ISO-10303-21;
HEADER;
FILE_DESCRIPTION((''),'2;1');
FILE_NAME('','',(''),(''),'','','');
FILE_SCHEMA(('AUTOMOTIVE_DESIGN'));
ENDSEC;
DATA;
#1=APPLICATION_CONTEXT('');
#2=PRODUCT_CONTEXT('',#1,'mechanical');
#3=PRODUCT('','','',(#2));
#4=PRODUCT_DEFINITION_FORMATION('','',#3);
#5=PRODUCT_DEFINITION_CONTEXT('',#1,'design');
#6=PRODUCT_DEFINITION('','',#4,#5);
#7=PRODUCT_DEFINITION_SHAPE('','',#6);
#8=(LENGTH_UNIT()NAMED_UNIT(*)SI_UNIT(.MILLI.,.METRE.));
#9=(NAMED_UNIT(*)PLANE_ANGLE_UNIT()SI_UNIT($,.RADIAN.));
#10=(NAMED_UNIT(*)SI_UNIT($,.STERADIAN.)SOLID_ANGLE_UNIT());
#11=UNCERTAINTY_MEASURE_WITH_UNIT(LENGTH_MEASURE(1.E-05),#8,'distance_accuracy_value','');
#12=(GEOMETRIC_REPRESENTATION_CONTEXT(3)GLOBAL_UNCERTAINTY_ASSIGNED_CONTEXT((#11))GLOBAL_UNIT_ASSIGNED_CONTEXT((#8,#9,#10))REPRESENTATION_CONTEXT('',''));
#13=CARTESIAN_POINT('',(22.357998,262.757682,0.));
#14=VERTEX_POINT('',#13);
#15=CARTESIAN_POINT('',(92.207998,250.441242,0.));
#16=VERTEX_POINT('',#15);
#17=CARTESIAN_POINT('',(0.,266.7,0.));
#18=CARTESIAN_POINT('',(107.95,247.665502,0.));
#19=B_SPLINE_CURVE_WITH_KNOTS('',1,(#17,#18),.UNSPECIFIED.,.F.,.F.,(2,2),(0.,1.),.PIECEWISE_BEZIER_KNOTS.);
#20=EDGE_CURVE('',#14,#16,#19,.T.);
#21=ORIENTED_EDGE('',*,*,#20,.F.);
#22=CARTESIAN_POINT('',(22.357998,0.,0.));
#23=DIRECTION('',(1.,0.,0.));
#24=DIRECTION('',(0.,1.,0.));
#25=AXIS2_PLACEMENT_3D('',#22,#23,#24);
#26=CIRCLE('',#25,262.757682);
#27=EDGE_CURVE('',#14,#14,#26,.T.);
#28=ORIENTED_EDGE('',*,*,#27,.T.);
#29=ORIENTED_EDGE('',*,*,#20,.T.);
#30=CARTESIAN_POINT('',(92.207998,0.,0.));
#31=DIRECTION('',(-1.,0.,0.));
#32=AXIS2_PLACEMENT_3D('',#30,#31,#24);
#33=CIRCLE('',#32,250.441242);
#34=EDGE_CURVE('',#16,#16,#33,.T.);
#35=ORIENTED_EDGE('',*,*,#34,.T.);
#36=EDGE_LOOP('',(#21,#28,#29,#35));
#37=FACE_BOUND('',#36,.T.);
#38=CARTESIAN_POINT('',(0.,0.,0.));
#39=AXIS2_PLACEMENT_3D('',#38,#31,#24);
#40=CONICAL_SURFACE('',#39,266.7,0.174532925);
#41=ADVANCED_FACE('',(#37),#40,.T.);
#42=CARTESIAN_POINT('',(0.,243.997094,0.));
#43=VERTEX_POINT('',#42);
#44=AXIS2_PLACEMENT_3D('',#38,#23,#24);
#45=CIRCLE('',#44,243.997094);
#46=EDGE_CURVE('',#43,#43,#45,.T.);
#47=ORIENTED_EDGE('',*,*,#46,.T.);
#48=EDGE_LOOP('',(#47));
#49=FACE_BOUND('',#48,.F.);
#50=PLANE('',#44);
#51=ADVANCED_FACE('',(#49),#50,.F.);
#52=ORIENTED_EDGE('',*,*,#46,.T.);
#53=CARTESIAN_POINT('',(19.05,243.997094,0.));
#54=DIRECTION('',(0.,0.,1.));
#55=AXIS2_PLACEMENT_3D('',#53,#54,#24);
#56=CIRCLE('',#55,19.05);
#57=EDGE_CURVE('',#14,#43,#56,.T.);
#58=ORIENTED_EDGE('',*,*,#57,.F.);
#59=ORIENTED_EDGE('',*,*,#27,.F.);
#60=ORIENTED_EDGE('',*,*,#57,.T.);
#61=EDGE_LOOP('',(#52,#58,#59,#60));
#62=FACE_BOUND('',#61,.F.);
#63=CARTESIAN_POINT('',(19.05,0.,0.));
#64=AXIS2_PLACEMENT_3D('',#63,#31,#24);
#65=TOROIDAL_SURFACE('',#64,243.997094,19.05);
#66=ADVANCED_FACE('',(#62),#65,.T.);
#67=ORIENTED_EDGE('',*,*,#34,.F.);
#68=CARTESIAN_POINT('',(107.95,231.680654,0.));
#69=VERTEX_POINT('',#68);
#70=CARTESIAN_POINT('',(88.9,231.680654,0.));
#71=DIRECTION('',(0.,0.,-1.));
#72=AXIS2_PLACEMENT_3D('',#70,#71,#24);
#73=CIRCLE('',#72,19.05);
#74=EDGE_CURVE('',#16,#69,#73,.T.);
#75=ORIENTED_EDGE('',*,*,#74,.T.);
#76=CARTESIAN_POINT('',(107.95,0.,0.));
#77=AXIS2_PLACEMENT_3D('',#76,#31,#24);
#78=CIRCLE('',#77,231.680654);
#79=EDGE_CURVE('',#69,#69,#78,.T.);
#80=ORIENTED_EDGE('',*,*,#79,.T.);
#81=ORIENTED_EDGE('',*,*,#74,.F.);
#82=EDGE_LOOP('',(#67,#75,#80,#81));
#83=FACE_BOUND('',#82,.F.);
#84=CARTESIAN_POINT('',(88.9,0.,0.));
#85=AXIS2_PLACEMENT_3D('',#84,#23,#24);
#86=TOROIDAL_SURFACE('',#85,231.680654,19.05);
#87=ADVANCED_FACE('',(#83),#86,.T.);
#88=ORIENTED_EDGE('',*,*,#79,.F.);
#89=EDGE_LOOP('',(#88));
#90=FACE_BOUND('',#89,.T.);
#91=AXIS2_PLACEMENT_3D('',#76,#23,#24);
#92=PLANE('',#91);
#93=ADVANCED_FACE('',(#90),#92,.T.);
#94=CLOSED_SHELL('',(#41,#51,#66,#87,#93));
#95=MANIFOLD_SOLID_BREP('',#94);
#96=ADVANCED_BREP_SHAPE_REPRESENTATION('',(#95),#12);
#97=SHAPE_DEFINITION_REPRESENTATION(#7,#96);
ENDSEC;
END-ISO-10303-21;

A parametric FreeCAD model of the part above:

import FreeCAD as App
import Part
import Sketcher

V = App.Vector
Q = App.Units.Quantity


def edges_at(feature, points):
    """Names of the edges that pass closest to the given points."""
    edges = feature.Shape.Edges
    near = lambda p: min(range(len(edges)), key=lambda i: edges[i].distToShape(Part.Vertex(*p))[0])
    return sorted({f"Edge{near(p) + 1}" for p in points})

doc = App.newDocument("Part")
body = doc.addObject("PartDesign::Body", "Body")

# Sketch on YZ plane
sketch1 = body.newObject("Sketcher::SketchObject", "Sketch")
sketch1.AttachmentSupport = (doc.getObject("YZ_Plane"), [""])
sketch1.MapMode = "FlatFace"
sketch1.addGeometry(Part.Circle(V(0, 0, 0), V(0, 0, 1), 267), False)
sketch1.addConstraint([
    Sketcher.Constraint("Coincident", 0, 3, -1, 1),
    Sketcher.Constraint("Diameter", 0, Q("21 in")),
])
pad1 = body.newObject("PartDesign::Pad", "Pad")
pad1.Profile = sketch1
pad1.Length = Q("4.25 in")
pad1.TaperAngle = -10
doc.recompute()

fillet = body.newObject("PartDesign::Fillet", "Fillet")
fillet.Base = (pad1, edges_at(pad1, [(107.95, -247.666, 0), (0, -266.7, 0)]))
fillet.Radius = Q("0.75 in")

doc.recompute()
